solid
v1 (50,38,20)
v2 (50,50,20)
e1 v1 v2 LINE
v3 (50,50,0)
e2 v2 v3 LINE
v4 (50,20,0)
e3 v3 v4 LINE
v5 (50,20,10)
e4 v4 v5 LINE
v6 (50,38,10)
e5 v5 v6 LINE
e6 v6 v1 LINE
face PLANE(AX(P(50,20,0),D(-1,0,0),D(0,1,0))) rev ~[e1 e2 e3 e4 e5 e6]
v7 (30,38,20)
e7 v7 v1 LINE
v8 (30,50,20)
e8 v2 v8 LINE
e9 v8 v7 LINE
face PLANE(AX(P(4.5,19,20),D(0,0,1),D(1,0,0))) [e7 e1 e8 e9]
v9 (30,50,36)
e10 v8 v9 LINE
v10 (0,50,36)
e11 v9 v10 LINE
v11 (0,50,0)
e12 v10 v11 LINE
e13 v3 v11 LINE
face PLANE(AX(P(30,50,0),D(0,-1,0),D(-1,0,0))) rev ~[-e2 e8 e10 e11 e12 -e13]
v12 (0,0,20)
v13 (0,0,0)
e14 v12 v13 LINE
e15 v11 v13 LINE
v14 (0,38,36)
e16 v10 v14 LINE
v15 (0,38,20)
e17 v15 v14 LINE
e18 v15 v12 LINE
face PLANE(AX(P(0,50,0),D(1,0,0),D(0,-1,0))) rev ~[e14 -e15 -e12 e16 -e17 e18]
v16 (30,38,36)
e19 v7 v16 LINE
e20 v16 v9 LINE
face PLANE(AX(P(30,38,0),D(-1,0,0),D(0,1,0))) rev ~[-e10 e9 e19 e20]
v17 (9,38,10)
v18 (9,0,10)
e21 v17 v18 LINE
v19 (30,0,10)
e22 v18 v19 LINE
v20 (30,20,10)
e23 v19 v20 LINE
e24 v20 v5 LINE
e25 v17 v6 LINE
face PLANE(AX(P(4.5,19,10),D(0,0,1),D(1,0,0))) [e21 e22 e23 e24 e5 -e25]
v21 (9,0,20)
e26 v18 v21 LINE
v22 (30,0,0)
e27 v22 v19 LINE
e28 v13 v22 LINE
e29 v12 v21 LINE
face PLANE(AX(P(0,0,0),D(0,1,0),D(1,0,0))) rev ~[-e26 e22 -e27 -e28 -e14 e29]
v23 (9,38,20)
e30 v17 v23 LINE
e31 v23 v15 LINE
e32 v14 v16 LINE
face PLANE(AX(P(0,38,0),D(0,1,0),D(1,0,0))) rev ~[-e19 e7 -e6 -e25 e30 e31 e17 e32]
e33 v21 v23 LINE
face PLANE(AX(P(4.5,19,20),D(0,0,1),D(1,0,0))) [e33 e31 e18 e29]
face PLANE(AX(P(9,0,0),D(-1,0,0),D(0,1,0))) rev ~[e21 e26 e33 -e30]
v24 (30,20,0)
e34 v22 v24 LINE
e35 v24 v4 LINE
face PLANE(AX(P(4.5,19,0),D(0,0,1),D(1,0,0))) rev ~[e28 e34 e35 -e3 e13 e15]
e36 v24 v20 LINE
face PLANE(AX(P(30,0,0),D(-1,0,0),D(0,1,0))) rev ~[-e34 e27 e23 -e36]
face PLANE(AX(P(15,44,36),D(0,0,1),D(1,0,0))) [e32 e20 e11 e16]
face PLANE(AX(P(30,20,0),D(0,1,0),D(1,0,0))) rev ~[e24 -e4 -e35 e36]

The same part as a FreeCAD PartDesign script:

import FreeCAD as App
import Part
import Sketcher

V = App.Vector
Q = App.Units.Quantity


def add_polygon(sketch, points):
    """Adds a closed chain of lines whose ends are joined by coincident constraints."""
    first, n = sketch.GeometryCount, len(points)
    for a, b in zip(points, points[1:] + points[:1]):
        sketch.addGeometry(Part.LineSegment(App.Vector(*a, 0), App.Vector(*b, 0)), False)
    for i in range(n):
        sketch.addConstraint(Sketcher.Constraint("Coincident", first + i, 2, first + (i + 1) % n, 1))

doc = App.newDocument("Part")
body = doc.addObject("PartDesign::Body", "Body")

sketch1 = body.newObject("Sketcher::SketchObject", "Sketch")
sketch1.AttachmentSupport = (doc.getObject("XY_Plane"), [""])
sketch1.MapMode = "FlatFace"
add_polygon(sketch1, [(0, 0), (30, 0), (30, 20), (50, 20), (50, 50), (0, 50)])
sketch1.addConstraint(Sketcher.Constraint("Horizontal", 0))
sketch1.addConstraint(Sketcher.Constraint("Vertical", 1))
sketch1.addConstraint(Sketcher.Constraint("Horizontal", 2))
sketch1.addConstraint(Sketcher.Constraint("Vertical", 3))
sketch1.addConstraint(Sketcher.Constraint("Horizontal", 4))
sketch1.addConstraint(Sketcher.Constraint("Vertical", 5))
sketch1.addConstraint(Sketcher.Constraint("Coincident", 5, 2, -1, 1))
sketch1.addConstraint(Sketcher.Constraint("Equal", 2, 1))
sketch1.addConstraint(Sketcher.Constraint("Equal", 0, 3))
sketch1.addConstraint(Sketcher.Constraint("DistanceX", 0, 1, 0, 2, Q("30 mm")))
sketch1.addConstraint(Sketcher.Constraint("DistanceX", 2, 1, 2, 2, Q("20 mm")))
pad1 = body.newObject("PartDesign::Pad", "Pad")
pad1.Profile = sketch1
pad1.Length = 10

sketch2 = body.newObject("Sketcher::SketchObject", "Sketch001")
sketch2.AttachmentSupport = (doc.getObject("XY_Plane"), [""])
sketch2.MapMode = "FlatFace"
add_polygon(sketch2, [(0, 0), (9, 0), (9, 38), (50, 38), (50, 50), (0, 50)])
sketch2.addConstraint(Sketcher.Constraint("Horizontal", 0))
sketch2.addConstraint(Sketcher.Constraint("Vertical", 1))
sketch2.addConstraint(Sketcher.Constraint("Horizontal", 2))
sketch2.addConstraint(Sketcher.Constraint("Vertical", 3))
sketch2.addConstraint(Sketcher.Constraint("Horizontal", 4))
sketch2.addConstraint(Sketcher.Constraint("Vertical", 5))
sketch2.addConstraint(Sketcher.Constraint("Coincident", 5, 2, -1, 1))
sketch2.addConstraint(Sketcher.Constraint("Equal", 4, 5))
sketch2.addConstraint(Sketcher.Constraint("DistanceX", 0, 1, 0, 2, Q("9 mm")))
sketch2.addConstraint(Sketcher.Constraint("DistanceX", 2, 1, 2, 2, Q("41 mm")))
sketch2.addConstraint(Sketcher.Constraint("DistanceY", 1, 1, 1, 2, Q("38 mm")))
pad2 = body.newObject("PartDesign::Pad", "Pad001")
pad2.Profile = sketch2
pad2.Length = 20

sketch3 = body.newObject("Sketcher::SketchObject", "Sketch002")
sketch3.AttachmentSupport = (doc.getObject("XY_Plane"), [""])
sketch3.MapMode = "FlatFace"
add_polygon(sketch3, [(0, 50), (0, 38), (30, 38), (30, 50)])
sketch3.addConstraint(Sketcher.Constraint("Vertical", 0))
sketch3.addConstraint(Sketcher.Constraint("Horizontal", 1))
sketch3.addConstraint(Sketcher.Constraint("Vertical", 2))
sketch3.addConstraint(Sketcher.Constraint("Horizontal", 3))
sketch3.addConstraint(Sketcher.Constraint("PointOnObject", 0, 2, -2))
sketch3.addConstraint(Sketcher.Constraint("DistanceX", 1, 1, 1, 2, Q("30 mm")))
sketch3.addConstraint(Sketcher.Constraint("DistanceY", 0, 2, 0, 1, Q("12 mm")))
sketch3.addConstraint(Sketcher.Constraint("DistanceY", -1, 1, 0, 2, Q("38 mm")))
pad3 = body.newObject("PartDesign::Pad", "Pad002")
pad3.Profile = sketch3
pad3.Length = 36

doc.recompute()
